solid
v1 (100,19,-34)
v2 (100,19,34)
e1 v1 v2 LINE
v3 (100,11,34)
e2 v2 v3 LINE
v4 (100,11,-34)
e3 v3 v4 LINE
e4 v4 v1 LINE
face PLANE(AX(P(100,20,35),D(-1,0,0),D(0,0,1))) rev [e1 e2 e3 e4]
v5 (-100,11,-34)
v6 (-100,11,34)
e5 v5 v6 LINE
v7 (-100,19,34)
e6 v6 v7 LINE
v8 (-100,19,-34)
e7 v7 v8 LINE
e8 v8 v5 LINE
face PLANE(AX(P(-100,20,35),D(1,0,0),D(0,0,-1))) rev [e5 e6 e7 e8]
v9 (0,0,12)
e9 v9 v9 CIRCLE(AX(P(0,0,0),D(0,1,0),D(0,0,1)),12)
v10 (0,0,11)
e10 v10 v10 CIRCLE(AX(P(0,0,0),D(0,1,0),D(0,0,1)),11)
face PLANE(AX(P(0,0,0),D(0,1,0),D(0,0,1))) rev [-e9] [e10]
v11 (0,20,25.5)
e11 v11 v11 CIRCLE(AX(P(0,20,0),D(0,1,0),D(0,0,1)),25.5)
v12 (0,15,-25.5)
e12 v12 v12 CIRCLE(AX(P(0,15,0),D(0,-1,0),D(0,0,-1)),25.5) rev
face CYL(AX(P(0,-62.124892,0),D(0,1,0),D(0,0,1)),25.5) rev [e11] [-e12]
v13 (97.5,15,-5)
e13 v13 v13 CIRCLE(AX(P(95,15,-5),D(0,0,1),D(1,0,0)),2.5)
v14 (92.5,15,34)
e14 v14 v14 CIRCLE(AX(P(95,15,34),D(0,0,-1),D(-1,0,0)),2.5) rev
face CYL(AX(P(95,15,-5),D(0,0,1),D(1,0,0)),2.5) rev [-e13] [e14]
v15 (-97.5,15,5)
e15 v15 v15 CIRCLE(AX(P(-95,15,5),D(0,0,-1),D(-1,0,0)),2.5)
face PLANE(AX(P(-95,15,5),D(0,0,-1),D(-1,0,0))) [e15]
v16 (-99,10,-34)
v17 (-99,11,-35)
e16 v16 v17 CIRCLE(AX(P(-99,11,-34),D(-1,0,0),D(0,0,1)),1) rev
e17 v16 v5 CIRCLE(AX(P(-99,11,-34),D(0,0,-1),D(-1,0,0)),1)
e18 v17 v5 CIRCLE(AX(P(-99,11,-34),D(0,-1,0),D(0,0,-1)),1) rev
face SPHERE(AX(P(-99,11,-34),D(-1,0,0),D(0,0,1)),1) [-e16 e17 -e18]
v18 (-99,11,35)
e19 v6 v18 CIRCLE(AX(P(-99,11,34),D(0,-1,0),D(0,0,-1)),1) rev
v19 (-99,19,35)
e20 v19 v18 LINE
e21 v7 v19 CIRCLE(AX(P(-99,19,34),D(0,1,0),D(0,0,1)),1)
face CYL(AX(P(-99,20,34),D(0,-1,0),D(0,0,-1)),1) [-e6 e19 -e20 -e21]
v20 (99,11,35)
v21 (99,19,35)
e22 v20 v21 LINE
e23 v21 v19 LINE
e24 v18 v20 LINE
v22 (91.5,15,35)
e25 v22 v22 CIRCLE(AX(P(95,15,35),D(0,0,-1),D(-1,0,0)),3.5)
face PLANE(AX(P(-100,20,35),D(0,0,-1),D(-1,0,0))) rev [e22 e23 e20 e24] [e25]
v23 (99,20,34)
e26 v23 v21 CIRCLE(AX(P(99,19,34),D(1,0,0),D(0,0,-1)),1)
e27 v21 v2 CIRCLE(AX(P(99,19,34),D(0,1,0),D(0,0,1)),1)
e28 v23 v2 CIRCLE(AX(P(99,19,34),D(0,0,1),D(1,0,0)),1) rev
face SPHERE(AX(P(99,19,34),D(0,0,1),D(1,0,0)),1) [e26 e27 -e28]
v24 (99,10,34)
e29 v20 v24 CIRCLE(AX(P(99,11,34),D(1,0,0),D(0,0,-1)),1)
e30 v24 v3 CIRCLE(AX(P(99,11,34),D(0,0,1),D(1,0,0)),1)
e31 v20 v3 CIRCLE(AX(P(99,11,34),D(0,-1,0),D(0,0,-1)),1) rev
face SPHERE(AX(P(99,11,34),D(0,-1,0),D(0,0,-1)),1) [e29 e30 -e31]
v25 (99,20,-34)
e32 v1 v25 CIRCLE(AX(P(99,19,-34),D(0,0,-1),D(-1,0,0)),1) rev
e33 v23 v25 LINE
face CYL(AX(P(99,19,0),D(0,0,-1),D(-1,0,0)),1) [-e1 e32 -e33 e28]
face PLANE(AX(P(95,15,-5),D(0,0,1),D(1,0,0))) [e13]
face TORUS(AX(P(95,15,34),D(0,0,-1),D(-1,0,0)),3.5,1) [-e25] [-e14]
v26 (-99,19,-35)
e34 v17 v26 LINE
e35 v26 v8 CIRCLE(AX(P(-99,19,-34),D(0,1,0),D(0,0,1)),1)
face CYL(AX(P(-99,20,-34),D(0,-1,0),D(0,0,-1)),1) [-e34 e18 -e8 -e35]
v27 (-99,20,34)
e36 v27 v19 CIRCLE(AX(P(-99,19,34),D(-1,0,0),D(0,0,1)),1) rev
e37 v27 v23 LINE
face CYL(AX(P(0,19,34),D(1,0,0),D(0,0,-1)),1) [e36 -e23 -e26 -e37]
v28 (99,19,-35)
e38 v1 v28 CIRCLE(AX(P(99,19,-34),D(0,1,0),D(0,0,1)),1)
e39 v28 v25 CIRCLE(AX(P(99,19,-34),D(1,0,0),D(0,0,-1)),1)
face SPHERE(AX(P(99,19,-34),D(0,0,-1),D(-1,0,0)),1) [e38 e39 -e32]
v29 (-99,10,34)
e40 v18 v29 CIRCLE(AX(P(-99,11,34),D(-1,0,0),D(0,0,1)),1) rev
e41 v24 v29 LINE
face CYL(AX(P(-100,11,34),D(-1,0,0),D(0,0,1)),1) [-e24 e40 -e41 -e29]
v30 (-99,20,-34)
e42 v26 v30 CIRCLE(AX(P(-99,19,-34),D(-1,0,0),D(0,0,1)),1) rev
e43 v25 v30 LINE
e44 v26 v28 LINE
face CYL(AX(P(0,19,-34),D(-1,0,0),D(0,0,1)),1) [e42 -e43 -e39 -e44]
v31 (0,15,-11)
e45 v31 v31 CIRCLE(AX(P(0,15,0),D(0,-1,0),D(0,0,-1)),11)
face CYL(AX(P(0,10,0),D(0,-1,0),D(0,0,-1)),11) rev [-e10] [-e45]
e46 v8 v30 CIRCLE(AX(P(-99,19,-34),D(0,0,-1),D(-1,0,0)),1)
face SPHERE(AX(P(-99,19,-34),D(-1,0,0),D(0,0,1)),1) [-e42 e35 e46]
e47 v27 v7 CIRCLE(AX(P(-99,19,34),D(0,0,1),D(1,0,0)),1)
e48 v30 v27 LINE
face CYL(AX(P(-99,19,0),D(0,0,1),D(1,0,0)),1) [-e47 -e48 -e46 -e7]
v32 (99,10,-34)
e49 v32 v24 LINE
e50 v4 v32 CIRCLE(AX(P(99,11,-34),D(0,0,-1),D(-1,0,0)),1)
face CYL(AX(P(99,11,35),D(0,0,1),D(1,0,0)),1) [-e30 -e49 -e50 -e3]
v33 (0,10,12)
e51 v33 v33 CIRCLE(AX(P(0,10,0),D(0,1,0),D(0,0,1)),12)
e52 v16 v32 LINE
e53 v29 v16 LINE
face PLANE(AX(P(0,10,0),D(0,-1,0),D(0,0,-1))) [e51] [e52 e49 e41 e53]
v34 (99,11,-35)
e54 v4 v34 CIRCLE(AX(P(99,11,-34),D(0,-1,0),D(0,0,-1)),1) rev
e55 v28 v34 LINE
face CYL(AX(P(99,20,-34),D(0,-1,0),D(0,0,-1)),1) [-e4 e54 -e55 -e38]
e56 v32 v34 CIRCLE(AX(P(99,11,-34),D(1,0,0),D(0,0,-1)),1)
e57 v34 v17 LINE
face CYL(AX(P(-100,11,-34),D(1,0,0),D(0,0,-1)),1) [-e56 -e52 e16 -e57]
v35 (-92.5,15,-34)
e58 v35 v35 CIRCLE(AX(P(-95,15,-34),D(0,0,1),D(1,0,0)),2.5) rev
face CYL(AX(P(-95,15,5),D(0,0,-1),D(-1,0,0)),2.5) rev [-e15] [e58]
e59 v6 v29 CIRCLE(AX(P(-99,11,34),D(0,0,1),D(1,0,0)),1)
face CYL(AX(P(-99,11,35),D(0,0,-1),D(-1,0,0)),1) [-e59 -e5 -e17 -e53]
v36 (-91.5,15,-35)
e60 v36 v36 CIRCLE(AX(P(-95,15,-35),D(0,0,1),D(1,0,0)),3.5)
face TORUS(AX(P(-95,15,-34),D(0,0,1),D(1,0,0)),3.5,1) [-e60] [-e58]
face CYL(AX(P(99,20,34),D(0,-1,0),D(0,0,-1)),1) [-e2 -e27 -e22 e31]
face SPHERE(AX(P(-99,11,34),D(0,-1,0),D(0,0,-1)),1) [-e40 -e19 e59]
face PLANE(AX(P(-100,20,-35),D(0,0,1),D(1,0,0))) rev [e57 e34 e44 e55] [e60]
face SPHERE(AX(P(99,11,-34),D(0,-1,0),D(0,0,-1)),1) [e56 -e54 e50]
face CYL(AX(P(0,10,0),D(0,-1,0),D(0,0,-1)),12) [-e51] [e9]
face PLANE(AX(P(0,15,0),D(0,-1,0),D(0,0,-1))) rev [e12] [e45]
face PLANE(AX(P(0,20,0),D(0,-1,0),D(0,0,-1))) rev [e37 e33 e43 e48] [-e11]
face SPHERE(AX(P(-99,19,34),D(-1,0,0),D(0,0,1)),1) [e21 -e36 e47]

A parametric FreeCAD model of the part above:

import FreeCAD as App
import Part
import Sketcher
from FreeCAD import Vector
Q = App.Units.Quantity


def edges_at(feature, points):
    """Names of the edges that pass closest to the given points."""
    edges = feature.Shape.Edges
    near = lambda p: min(range(len(edges)), key=lambda i: edges[i].distToShape(Part.Vertex(*p))[0])
    return sorted({f"Edge{near(p) + 1}" for p in points})


def add_polygon(sketch, points):
    """Adds a closed chain of lines whose ends are joined by coincident constraints."""
    first, n = sketch.GeometryCount, len(points)
    for a, b in zip(points, points[1:] + points[:1]):
        sketch.addGeometry(Part.LineSegment(App.Vector(*a, 0), App.Vector(*b, 0)), False)
    for i in range(n):
        sketch.addConstraint(Sketcher.Constraint("Coincident", first + i, 2, first + (i + 1) % n, 1))

doc = App.newDocument("Part")
body = doc.addObject("PartDesign::Body", "Body")

# Sketch on XZ plane
sketch1 = body.newObject("Sketcher::SketchObject", "Sketch")
sketch1.AttachmentSupport = (doc.getObject("XZ_Plane"), [""])
sketch1.MapMode = "FlatFace"
sketch1.addGeometry([
    Part.Circle(Vector(0, 0, 0), Vector(0, 0, 1), 12),
    Part.Circle(Vector(0, 0, 0), Vector(0, 0, 1), 11),
], False)
sketch1.addConstraint([
    Sketcher.Constraint("Coincident", 0, 3, -1, 1),
    Sketcher.Constraint("Coincident", 1, 3, -1, 1),
    Sketcher.Constraint("Diameter", 0, Q("24 mm")),
    Sketcher.Constraint("Diameter", 1, Q("22 mm")),
])
pad1 = body.newObject("PartDesign::Pad", "Pad")
pad1.Profile = sketch1
pad1.Length = 10
pad1.Reversed = True

# Sketch on XZ plane
sketch2 = body.newObject("Sketcher::SketchObject", "Sketch001")
sketch2.AttachmentSupport = (doc.getObject("XZ_Plane"), [""])
sketch2.MapMode = "FlatFace"
sketch2.AttachmentOffset = App.Placement(Vector(0, 0, -10), App.Rotation())
add_polygon(sketch2, [(-100, -35), (-100, 35), (100, 35), (100, -35)])  # lines 0-3
sketch2.addConstraint([
    Sketcher.Constraint("Vertical", 0),
    Sketcher.Constraint("Horizontal", 1),
    Sketcher.Constraint("Vertical", 2),
    Sketcher.Constraint("Horizontal", 3),
    Sketcher.Constraint("Symmetric", 0, 2, 2, 2, -1, 1),
    Sketcher.Constraint("DistanceX", 1, 1, 1, 2, Q("200 mm")),
    Sketcher.Constraint("DistanceY", 0, 1, 0, 2, Q("70 mm")),
])
pad2 = body.newObject("PartDesign::Pad", "Pad001")
pad2.Profile = sketch2
pad2.Length = 10
pad2.Reversed = True

# Sketch on XZ plane
sketch3 = body.newObject("Sketcher::SketchObject", "Sketch002")
sketch3.AttachmentSupport = (doc.getObject("XZ_Plane"), [""])
sketch3.MapMode = "FlatFace"
sketch3.AttachmentOffset = App.Placement(Vector(0, 0, -10), App.Rotation())
sketch3.addGeometry(Part.Circle(Vector(0, 0, 0), Vector(0, 0, 1), 11), False)
sketch3.addConstraint([
    Sketcher.Constraint("Coincident", 0, 3, -1, 1),
    Sketcher.Constraint("Diameter", 0, Q("22 mm")),
])
pocket1 = body.newObject("PartDesign::Pocket", "Pocket")
pocket1.Profile = sketch3
pocket1.Type = "UpToFirst"

# Sketch on XZ plane
sketch4 = body.newObject("Sketcher::SketchObject", "Sketch003")
sketch4.AttachmentSupport = (doc.getObject("XZ_Plane"), [""])
sketch4.MapMode = "FlatFace"
sketch4.AttachmentOffset = App.Placement(Vector(0, 0, -20), App.Rotation())
sketch4.addGeometry(Part.Circle(Vector(0, 0, 0), Vector(0, 0, 1), 26), False)
sketch4.addConstraint([
    Sketcher.Constraint("Coincident", 0, 3, -1, 1),
    Sketcher.Constraint("Diameter", 0, Q("51 mm")),
])
pocket2 = body.newObject("PartDesign::Pocket", "Pocket001")
pocket2.Profile = sketch4
pocket2.Length = 5
pocket2.Reversed = True

# Sketch on XY plane
sketch5 = body.newObject("Sketcher::SketchObject", "Sketch004")
sketch5.AttachmentSupport = (doc.getObject("XY_Plane"), [""])
sketch5.MapMode = "FlatFace"
sketch5.AttachmentOffset = App.Placement(Vector(0, 0, 35), App.Rotation())
sketch5.addGeometry(Part.Circle(Vector(95, 15, 0), Vector(0, 0, 1), 2.5), False)
sketch5.addConstraint([
    Sketcher.Constraint("Diameter", 0, Q("5 mm")),
    Sketcher.Constraint("DistanceX", -1, 1, 0, 3, Q("95 mm")),
    Sketcher.Constraint("DistanceY", -1, 1, 0, 3, Q("15 mm")),
])
pocket3 = body.newObject("PartDesign::Pocket", "Pocket002")
pocket3.Profile = sketch5
pocket3.Length = 40

# Sketch on XY plane
sketch6 = body.newObject("Sketcher::SketchObject", "Sketch005")
sketch6.AttachmentSupport = (doc.getObject("XY_Plane"), [""])
sketch6.MapMode = "FlatFace"
sketch6.AttachmentOffset = App.Placement(Vector(0, 0, -35), App.Rotation())
sketch6.addGeometry(Part.Circle(Vector(-95, 15, 0), Vector(0, 0, 1), 2.5), False)
sketch6.addConstraint([
    Sketcher.Constraint("Diameter", 0, Q("5 mm")),
    Sketcher.Constraint("DistanceX", 0, 3, -1, 1, Q("95 mm")),
    Sketcher.Constraint("DistanceY", -1, 1, 0, 3, Q("15 mm")),
])
pocket4 = body.newObject("PartDesign::Pocket", "Pocket003")
pocket4.Profile = sketch6
pocket4.Length = 40
pocket4.Reversed = True
doc.recompute()

fillet = body.newObject("PartDesign::Fillet", "Fillet")
fillet.Base = (pocket4, edges_at(pocket4, [
    (100, 10, 0),
    (100, 15, 35),
    (0, 10, -35),
    (100, 15, -35),
    (-100, 10, 0),
    (-100, 15, -35),
    (0, 10, 35),
    (-100, 15, 35),
    (100, 20, 0),
    (0, 20, -35),
    (-100, 20, 0),
    (0, 20, 35),
    (92.5, 15, 35),
    (-92.5, 15, -35),
]))
fillet.Radius = 1

doc.recompute()
